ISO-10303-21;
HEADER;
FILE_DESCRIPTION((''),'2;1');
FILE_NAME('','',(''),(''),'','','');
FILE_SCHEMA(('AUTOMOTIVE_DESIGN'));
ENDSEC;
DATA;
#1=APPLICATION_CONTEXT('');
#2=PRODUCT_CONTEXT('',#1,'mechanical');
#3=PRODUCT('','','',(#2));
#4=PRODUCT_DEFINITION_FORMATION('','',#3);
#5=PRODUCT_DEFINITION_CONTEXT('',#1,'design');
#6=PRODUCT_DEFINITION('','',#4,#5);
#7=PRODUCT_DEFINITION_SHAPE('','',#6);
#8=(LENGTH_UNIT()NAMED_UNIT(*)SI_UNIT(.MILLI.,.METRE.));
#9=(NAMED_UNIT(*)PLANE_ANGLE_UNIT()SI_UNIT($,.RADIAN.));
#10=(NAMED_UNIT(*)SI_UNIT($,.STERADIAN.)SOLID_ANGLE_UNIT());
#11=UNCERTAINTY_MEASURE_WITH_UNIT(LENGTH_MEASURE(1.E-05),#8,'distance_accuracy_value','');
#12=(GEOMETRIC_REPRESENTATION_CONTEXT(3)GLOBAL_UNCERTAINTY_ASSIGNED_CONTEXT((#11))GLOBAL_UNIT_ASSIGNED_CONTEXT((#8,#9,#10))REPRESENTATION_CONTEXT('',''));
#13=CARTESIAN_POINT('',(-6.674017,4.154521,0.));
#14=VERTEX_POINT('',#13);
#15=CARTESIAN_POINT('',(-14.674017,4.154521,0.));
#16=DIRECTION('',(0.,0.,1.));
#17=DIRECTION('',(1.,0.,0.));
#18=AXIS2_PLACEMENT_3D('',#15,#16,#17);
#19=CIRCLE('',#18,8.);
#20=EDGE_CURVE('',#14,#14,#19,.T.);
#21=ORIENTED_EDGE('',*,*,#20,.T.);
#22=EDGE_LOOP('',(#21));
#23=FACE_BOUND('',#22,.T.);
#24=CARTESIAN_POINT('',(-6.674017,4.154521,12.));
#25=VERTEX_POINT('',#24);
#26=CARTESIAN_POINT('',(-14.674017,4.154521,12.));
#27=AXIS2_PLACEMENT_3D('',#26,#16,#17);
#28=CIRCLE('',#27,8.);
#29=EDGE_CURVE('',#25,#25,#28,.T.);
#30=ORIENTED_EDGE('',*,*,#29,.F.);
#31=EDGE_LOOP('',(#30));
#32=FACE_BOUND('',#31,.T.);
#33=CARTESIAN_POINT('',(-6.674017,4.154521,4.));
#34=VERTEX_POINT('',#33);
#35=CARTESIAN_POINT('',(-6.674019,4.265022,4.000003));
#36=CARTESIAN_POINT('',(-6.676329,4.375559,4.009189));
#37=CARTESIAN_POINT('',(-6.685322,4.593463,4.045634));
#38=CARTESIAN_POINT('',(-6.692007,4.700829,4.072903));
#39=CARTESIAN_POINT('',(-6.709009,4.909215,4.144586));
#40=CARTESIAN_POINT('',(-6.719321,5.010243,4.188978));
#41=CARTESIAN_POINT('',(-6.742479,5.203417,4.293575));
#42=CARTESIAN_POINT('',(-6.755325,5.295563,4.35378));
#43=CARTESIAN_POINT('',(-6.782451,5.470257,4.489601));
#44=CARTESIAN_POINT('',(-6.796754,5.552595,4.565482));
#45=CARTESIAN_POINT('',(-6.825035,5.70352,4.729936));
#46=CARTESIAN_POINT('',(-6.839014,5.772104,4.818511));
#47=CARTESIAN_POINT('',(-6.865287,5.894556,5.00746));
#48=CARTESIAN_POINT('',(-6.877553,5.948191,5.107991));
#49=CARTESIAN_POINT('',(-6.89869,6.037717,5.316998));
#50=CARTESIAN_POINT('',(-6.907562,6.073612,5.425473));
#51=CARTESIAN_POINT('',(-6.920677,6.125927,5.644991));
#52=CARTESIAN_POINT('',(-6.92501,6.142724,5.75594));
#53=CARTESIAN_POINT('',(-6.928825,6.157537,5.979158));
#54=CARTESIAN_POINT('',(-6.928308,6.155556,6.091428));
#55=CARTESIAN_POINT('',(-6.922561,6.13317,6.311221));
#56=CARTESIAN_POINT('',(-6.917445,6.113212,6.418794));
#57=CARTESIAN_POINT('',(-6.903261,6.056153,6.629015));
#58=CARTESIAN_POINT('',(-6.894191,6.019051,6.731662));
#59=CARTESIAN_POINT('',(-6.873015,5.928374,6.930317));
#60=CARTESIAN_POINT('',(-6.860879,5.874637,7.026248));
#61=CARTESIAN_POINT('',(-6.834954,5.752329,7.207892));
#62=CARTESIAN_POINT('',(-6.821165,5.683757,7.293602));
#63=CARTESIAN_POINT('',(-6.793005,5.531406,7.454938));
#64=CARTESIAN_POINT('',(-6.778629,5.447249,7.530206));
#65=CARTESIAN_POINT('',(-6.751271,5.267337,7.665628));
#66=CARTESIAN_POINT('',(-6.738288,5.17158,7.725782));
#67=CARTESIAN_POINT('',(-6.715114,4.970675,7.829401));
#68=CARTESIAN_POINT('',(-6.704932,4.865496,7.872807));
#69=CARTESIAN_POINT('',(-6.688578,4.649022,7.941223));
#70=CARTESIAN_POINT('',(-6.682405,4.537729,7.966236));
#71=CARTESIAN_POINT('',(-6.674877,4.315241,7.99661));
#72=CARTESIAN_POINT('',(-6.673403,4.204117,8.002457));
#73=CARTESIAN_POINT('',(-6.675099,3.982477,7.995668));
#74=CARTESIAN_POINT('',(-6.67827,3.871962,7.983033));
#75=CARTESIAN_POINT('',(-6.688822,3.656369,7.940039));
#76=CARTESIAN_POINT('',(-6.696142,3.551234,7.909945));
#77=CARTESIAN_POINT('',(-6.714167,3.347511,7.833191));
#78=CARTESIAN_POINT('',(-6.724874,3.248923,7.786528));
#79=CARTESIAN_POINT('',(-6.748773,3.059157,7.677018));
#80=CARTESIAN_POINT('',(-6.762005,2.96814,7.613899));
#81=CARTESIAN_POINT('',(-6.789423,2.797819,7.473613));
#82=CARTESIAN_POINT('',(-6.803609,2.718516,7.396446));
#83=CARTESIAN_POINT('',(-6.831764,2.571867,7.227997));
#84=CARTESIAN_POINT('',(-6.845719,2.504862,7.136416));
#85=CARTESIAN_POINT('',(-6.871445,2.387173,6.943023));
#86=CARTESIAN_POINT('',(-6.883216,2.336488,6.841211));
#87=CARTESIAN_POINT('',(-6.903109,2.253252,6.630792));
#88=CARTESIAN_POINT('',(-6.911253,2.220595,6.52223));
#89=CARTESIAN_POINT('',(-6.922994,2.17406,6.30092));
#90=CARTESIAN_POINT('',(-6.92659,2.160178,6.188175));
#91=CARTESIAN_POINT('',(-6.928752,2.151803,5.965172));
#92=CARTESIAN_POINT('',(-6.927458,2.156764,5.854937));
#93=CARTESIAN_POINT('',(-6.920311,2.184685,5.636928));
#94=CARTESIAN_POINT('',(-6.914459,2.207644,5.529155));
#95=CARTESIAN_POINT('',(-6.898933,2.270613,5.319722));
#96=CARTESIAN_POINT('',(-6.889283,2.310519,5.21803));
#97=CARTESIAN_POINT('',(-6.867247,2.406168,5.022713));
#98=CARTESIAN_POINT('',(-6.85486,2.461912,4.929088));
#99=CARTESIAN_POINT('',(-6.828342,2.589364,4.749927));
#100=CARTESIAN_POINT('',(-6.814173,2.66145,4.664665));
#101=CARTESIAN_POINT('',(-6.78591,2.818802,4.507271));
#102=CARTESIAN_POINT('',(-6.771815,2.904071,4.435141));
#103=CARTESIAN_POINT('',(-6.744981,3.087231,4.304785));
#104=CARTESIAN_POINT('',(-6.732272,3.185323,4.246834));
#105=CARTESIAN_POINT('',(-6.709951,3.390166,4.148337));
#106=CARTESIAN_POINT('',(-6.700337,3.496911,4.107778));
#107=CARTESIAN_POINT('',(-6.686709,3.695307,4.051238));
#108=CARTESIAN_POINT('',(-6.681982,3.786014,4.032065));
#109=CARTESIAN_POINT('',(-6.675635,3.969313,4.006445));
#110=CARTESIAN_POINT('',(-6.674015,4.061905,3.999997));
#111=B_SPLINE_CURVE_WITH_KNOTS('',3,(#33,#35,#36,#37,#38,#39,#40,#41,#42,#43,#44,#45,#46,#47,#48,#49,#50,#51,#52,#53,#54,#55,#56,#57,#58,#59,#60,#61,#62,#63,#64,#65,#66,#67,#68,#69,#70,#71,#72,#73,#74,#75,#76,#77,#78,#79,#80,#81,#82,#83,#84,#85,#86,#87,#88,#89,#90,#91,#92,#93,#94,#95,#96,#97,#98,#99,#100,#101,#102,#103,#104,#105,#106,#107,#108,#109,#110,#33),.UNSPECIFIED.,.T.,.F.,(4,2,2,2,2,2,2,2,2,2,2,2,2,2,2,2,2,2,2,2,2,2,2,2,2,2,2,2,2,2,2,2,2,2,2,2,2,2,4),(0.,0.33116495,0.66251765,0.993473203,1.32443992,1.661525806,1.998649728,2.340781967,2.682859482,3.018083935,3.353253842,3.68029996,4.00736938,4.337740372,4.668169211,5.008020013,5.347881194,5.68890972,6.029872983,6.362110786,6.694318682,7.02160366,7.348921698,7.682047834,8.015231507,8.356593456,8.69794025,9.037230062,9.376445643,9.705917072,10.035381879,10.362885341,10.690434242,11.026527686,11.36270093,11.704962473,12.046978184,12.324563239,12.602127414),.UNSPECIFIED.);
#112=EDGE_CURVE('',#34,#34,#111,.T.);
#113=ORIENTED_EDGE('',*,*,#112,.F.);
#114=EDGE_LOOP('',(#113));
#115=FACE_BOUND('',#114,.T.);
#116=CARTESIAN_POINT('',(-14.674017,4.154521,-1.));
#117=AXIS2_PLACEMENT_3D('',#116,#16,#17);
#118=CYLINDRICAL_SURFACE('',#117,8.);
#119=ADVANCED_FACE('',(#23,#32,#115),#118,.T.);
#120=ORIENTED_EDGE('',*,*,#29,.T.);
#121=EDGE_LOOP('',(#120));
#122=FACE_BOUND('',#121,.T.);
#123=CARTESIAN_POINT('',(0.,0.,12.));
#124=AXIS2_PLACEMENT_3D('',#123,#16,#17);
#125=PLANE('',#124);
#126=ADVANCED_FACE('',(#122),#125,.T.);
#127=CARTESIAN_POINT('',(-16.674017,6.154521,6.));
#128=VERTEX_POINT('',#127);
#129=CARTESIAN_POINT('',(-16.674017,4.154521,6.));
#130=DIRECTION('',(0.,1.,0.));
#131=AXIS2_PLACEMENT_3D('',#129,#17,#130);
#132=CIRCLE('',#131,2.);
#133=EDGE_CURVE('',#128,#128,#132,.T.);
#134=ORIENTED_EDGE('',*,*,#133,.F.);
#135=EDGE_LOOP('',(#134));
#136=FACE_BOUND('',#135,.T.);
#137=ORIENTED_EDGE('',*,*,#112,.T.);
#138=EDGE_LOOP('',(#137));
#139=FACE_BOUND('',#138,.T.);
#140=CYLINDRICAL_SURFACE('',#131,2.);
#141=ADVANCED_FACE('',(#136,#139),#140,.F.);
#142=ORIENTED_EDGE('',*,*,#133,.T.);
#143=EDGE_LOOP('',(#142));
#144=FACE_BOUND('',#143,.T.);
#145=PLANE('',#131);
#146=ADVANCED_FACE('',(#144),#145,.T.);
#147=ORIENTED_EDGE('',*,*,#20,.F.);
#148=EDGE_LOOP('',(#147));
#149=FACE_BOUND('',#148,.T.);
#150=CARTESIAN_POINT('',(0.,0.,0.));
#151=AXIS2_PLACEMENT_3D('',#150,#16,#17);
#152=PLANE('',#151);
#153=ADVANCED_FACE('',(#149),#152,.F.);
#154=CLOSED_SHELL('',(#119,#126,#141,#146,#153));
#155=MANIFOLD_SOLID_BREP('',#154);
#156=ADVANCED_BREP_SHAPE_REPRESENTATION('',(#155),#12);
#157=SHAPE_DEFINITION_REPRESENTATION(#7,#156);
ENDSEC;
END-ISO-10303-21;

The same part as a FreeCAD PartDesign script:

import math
import FreeCAD as App
import Part
import Sketcher

V = App.Vector


def add_polygon(sketch, points):
    """Adds a closed chain of lines whose ends are joined by coincident constraints."""
    first, n = sketch.GeometryCount, len(points)
    for a, b in zip(points, points[1:] + points[:1]):
        sketch.addGeometry(Part.LineSegment(App.Vector(*a, 0), App.Vector(*b, 0)), False)
    for i in range(n):
        sketch.addConstraint(Sketcher.Constraint("Coincident", first + i, 2, first + (i + 1) % n, 1))

doc = App.newDocument("Part")
body = doc.addObject("PartDesign::Body", "Body")

# Sketch on XY plane
sketch1 = doc.addObject("Sketcher::SketchObject", "Sketch")
body.addObject(sketch1)
sketch1.AttachmentSupport = (doc.XY_Plane, [""])
sketch1.MapMode = "FlatFace"
add_polygon(sketch1, [(-23, 12), (-23, -4), (-7, -4), (-7, 12)])  # lines 0-3
sketch1.addConstraint([
    Sketcher.Constraint("Vertical", 0),
    Sketcher.Constraint("Horizontal", 1),
    Sketcher.Constraint("Vertical", 2),
    Sketcher.Constraint("Horizontal", 3),
    Sketcher.Constraint("Equal", 3, 0),
    Sketcher.Constraint("DistanceX", 1, 1, 1, 2, 16.0),
    Sketcher.Constraint("DistanceY", 0, 2, -1, 1, 3.845479),
    Sketcher.Constraint("DistanceX", 0, 2, -1, 1, 22.674017),
])
pad1 = doc.addObject("PartDesign::Pad", "Pad")
body.addObject(pad1)
pad1.Profile = sketch1
pad1.Length = 12

# Sketch on XY plane
sketch2 = doc.addObject("Sketcher::SketchObject", "Sketch001")
body.addObject(sketch2)
sketch2.AttachmentSupport = (doc.XY_Plane, [""])
sketch2.MapMode = "FlatFace"
sketch2.AttachmentOffset = App.Placement(V(0, 0, 12), App.Rotation())
sketch2.addGeometry([
    Part.LineSegment(V(-7, 12, 0), V(-15, 12, 0)),  # 0
    Part.ArcOfCircle(Part.Circle(V(-15, 4, 0), V(0, 0, 1), 8), math.radians(0), math.radians(90)),  # 1
    Part.LineSegment(V(-7, 4, 0), V(-7, 12, 0)),  # 2
    Part.LineSegment(V(-7, -4, 0), V(-7, 4, 0)),  # 3
    Part.ArcOfCircle(Part.Circle(V(-15, 4, 0), V(0, 0, 1), 8), math.radians(-90), math.radians(0)),  # 4
    Part.LineSegment(V(-15, -4, 0), V(-7, -4, 0)),  # 5
    Part.LineSegment(V(-15, 12, 0), V(-23, 12, 0)),  # 6
    Part.LineSegment(V(-23, 12, 0), V(-23, 4, 0)),  # 7
    Part.ArcOfCircle(Part.Circle(V(-15, 4, 0), V(0, 0, 1), 8), math.radians(90), math.radians(180)),  # 8
    Part.ArcOfCircle(Part.Circle(V(-15, 4, 0), V(0, 0, 1), 8), math.radians(180), math.radians(270)),  # 9
    Part.LineSegment(V(-23, 4, 0), V(-23, -4, 0)),  # 10
    Part.LineSegment(V(-23, -4, 0), V(-15, -4, 0)),  # 11
], False)
sketch2.addConstraint([
    Sketcher.Constraint("Tangent", 0, 2, 1, 2),
    Sketcher.Constraint("Tangent", 1, 1, 2, 1),
    Sketcher.Constraint("Coincident", 2, 2, 0, 1),
    Sketcher.Constraint("Tangent", 3, 2, 4, 2),
    Sketcher.Constraint("Tangent", 4, 1, 5, 1),
    Sketcher.Constraint("Coincident", 5, 2, 3, 1),
    Sketcher.Constraint("Coincident", 6, 2, 7, 1),
    Sketcher.Constraint("Tangent", 7, 2, 8, 2),
    Sketcher.Constraint("Tangent", 8, 1, 6, 1),
    Sketcher.Constraint("Tangent", 9, 1, 10, 1),
    Sketcher.Constraint("Coincident", 10, 2, 11, 1),
    Sketcher.Constraint("Tangent", 11, 2, 9, 2),
    Sketcher.Constraint("Horizontal", 0),
    Sketcher.Constraint("Vertical", 2),
    Sketcher.Constraint("Vertical", 3),
    Sketcher.Constraint("Horizontal", 5),
    Sketcher.Constraint("Horizontal", 6),
    Sketcher.Constraint("Vertical", 7),
    Sketcher.Constraint("Vertical", 10),
    Sketcher.Constraint("Horizontal", 11),
    Sketcher.Constraint("Coincident", 4, 3, 1, 3),
    Sketcher.Constraint("Coincident", 8, 3, 1, 3),
    Sketcher.Constraint("Coincident", 9, 3, 1, 3),
    Sketcher.Constraint("Equal", 1, 4),
    Sketcher.Constraint("Equal", 4, 8),
    Sketcher.Constraint("Equal", 8, 9),
    Sketcher.Constraint("Radius", 1, 8.0),
    Sketcher.Constraint("DistanceY", -1, 1, 1, 3, 4.154521),
    Sketcher.Constraint("DistanceX", 1, 3, -1, 1, 14.674017),
])
pocket1 = doc.addObject("PartDesign::Pocket", "Pocket")
body.addObject(pocket1)
pocket1.Profile = sketch2
pocket1.Length = 13

# Sketch on YZ plane
sketch3 = doc.addObject("Sketcher::SketchObject", "Sketch002")
body.addObject(sketch3)
sketch3.AttachmentSupport = (doc.YZ_Plane, [""])
sketch3.MapMode = "FlatFace"
sketch3.AttachmentOffset = App.Placement(V(0, 0, -6.674017), App.Rotation())
sketch3.addGeometry(Part.Circle(V(4.2, 6, 0), V(0, 0, 1), 2), False)
sketch3.addConstraint([
    Sketcher.Constraint("Diameter", 0, 4.0),
    Sketcher.Constraint("DistanceY", -1, 1, 0, 3, 6.0),
    Sketcher.Constraint("DistanceX", -1, 1, 0, 3, 4.154521),
])
pocket2 = doc.addObject("PartDesign::Pocket", "Pocket001")
body.addObject(pocket2)
pocket2.Profile = sketch3
pocket2.Length = 10

doc.recompute()
